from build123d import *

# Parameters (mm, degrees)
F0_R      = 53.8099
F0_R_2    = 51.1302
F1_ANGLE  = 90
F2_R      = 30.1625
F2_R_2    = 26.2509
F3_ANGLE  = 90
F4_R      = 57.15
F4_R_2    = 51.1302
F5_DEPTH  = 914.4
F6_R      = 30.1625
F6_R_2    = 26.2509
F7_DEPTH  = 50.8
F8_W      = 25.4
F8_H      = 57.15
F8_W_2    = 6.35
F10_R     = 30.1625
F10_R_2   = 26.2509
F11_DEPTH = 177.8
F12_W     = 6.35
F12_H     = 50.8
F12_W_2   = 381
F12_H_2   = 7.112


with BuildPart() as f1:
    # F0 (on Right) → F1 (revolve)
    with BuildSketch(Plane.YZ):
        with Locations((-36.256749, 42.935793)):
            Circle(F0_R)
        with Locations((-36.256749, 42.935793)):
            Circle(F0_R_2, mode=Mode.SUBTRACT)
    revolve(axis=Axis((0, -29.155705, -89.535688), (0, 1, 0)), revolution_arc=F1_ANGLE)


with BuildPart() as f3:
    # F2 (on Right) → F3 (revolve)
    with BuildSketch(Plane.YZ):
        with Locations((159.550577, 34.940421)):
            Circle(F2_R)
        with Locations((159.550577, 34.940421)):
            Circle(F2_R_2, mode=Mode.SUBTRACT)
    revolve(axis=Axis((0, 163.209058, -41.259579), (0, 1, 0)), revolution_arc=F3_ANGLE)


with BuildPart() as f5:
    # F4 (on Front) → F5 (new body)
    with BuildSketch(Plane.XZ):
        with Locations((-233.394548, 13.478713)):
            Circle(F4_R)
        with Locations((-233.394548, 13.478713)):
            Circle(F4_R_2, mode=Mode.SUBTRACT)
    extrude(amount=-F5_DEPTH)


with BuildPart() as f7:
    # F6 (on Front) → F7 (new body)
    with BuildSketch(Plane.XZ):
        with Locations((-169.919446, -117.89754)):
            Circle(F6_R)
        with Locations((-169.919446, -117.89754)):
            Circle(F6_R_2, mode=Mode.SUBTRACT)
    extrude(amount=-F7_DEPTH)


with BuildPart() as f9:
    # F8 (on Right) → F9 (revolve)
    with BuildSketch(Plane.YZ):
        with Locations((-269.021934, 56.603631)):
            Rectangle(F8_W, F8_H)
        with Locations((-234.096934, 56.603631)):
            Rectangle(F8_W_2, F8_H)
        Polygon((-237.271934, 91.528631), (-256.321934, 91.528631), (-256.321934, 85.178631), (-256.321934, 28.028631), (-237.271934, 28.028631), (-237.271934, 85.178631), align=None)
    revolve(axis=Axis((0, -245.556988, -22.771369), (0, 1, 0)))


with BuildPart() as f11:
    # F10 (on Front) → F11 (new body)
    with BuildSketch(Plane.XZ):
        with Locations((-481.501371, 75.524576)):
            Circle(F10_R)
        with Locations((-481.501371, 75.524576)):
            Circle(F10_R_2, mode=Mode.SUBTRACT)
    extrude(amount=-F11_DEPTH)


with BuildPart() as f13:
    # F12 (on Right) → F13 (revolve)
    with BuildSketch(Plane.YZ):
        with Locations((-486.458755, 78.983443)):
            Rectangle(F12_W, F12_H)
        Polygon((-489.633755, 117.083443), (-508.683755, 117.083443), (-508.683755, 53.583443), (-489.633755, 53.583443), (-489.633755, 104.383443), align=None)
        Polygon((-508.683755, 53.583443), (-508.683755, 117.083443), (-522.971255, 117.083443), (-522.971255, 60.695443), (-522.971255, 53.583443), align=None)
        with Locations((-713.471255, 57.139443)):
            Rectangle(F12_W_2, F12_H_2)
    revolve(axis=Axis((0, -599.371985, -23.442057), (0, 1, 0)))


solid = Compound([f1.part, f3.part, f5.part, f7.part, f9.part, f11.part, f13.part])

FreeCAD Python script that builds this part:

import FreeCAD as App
import Part
import Sketcher
from FreeCAD import Vector
Q = App.Units.Quantity


def add_polygon(sketch, points):
    """Adds a closed chain of lines whose ends are joined by coincident constraints."""
    first, n = sketch.GeometryCount, len(points)
    for a, b in zip(points, points[1:] + points[:1]):
        sketch.addGeometry(Part.LineSegment(App.Vector(*a, 0), App.Vector(*b, 0)), False)
    for i in range(n):
        sketch.addConstraint(Sketcher.Constraint("Coincident", first + i, 2, first + (i + 1) % n, 1))

doc = App.newDocument("Part")
body = doc.addObject("PartDesign::Body", "Body")

# Sketch on YZ plane
sketch1 = body.newObject("Sketcher::SketchObject", "Sketch")
sketch1.AttachmentSupport = (doc.getObject("YZ_Plane"), [""])
sketch1.MapMode = "FlatFace"
sketch1.addGeometry([
    Part.Circle(Vector(-36, 43, 0), Vector(0, 0, 1), 54),
    Part.Circle(Vector(-36, 43, 0), Vector(0, 0, 1), 51),
], False)
sketch1.addGeometry(Part.LineSegment(Vector(-36, -90, 0), Vector(-26, -90, 0)), True)  # axis
sketch1.addConstraint([
    Sketcher.Constraint("Horizontal", 2),
    Sketcher.Constraint("Coincident", 1, 3, 0, 3),
    Sketcher.Constraint("Vertical", 1, 3, 2, 1),
    Sketcher.Constraint("Diameter", 0, Q("4.237 in")),
    Sketcher.Constraint("Diameter", 1, Q("4.026 in")),
    Sketcher.Constraint("DistanceX", 2, 1, 2, 2, 10.0),
    Sketcher.Constraint("DistanceX", 0, 3, -1, 1, 36.256749),
    Sketcher.Constraint("DistanceY", 2, 1, 0, 3, 132.471481),
    Sketcher.Constraint("DistanceY", -1, 1, 0, 3, 42.935793),
])
revolution = body.newObject("PartDesign::Revolution", "Revolution")
revolution.Profile = sketch1
revolution.ReferenceAxis = (sketch1, ["Axis0"])
revolution.Angle = 90
body2 = doc.addObject("PartDesign::Body", "Body001")

# Sketch on YZ plane
sketch2 = body2.newObject("Sketcher::SketchObject", "Sketch001")
sketch2.AttachmentSupport = (doc.getObject("YZ_Plane001"), [""])
sketch2.MapMode = "FlatFace"
sketch2.addGeometry([
    Part.Circle(Vector(160, 35, 0), Vector(0, 0, 1), 30),
    Part.Circle(Vector(160, 35, 0), Vector(0, 0, 1), 26),
], False)
sketch2.addGeometry(Part.LineSegment(Vector(160, -41, 0), Vector(170, -41, 0)), True)  # axis
sketch2.addConstraint([
    Sketcher.Constraint("Horizontal", 2),
    Sketcher.Constraint("Coincident", 1, 3, 0, 3),
    Sketcher.Constraint("Vertical", 1, 3, 2, 1),
    Sketcher.Constraint("Diameter", 0, Q("2.375 in")),
    Sketcher.Constraint("Diameter", 1, Q("2.067 in")),
    Sketcher.Constraint("DistanceY", 2, 1, 0, 3, Q("3 in")),
    Sketcher.Constraint("DistanceX", 2, 1, 2, 2, 10.0),
    Sketcher.Constraint("DistanceY", -1, 1, 0, 3, 34.940421),
    Sketcher.Constraint("DistanceX", -1, 1, 0, 3, 159.550577),
])
revolution2 = body2.newObject("PartDesign::Revolution", "Revolution001")
revolution2.Profile = sketch2
revolution2.ReferenceAxis = (sketch2, ["Axis0"])
revolution2.Angle = 90
body3 = doc.addObject("PartDesign::Body", "Body002")

# Sketch on XZ plane
sketch3 = body3.newObject("Sketcher::SketchObject", "Sketch002")
sketch3.AttachmentSupport = (doc.getObject("XZ_Plane002"), [""])
sketch3.MapMode = "FlatFace"
sketch3.addGeometry([
    Part.Circle(Vector(-233, 13, 0), Vector(0, 0, 1), 57),
    Part.Circle(Vector(-233, 13, 0), Vector(0, 0, 1), 51),
], False)
sketch3.addConstraint([
    Sketcher.Constraint("Coincident", 1, 3, 0, 3),
    Sketcher.Constraint("Diameter", 0, Q("4.5 in")),
    Sketcher.Constraint("Diameter", 1, Q("4.026 in")),
    Sketcher.Constraint("DistanceX", 0, 3, -1, 1, 233.394548),
    Sketcher.Constraint("DistanceY", -1, 1, 0, 3, 13.478713),
])
pad1 = body3.newObject("PartDesign::Pad", "Pad")
pad1.Profile = sketch3
pad1.Length = Q("36 in")
pad1.Reversed = True
body4 = doc.addObject("PartDesign::Body", "Body003")

# Sketch on XZ plane
sketch4 = body4.newObject("Sketcher::SketchObject", "Sketch003")
sketch4.AttachmentSupport = (doc.getObject("XZ_Plane003"), [""])
sketch4.MapMode = "FlatFace"
sketch4.addGeometry([
    Part.Circle(Vector(-170, -118, 0), Vector(0, 0, 1), 30),
    Part.Circle(Vector(-170, -118, 0), Vector(0, 0, 1), 26),
], False)
sketch4.addConstraint([
    Sketcher.Constraint("Coincident", 1, 3, 0, 3),
    Sketcher.Constraint("Diameter", 0, Q("2.375 in")),
    Sketcher.Constraint("Diameter", 1, Q("2.067 in")),
    Sketcher.Constraint("DistanceY", 0, 3, -1, 1, 117.89754),
    Sketcher.Constraint("DistanceX", 0, 3, -1, 1, 169.919446),
])
pad2 = body4.newObject("PartDesign::Pad", "Pad001")
pad2.Profile = sketch4
pad2.Length = Q("2 in")
pad2.Reversed = True
body5 = doc.addObject("PartDesign::Body", "Body004")

# Sketch on YZ plane
sketch5 = body5.newObject("Sketcher::SketchObject", "Sketch004")
sketch5.AttachmentSupport = (doc.getObject("YZ_Plane004"), [""])
sketch5.MapMode = "FlatFace"
add_polygon(sketch5, [(-282, 85), (-282, 28), (-231, 28), (-231, 85), (-237, 85), (-237, 92), (-256, 92), (-256, 85)])  # lines 0-7
sketch5.addGeometry(Part.LineSegment(Vector(-282, -23, 0), Vector(-231, -23, 0)), True)  # axis
sketch5.addConstraint([
    Sketcher.Constraint("Vertical", 0),
    Sketcher.Constraint("Horizontal", 1),
    Sketcher.Constraint("Vertical", 2),
    Sketcher.Constraint("Horizontal", 3),
    Sketcher.Constraint("Vertical", 4),
    Sketcher.Constraint("Horizontal", 5),
    Sketcher.Constraint("Vertical", 6),
    Sketcher.Constraint("Horizontal", 7),
    Sketcher.Constraint("Horizontal", 8),
    Sketcher.Constraint("Horizontal", 3, 2, 6, 2),
    Sketcher.Constraint("Vertical", 7, 2, 8, 1),
    Sketcher.Constraint("Vertical", 2, 2, 8, 2),
    Sketcher.Constraint("Equal", 3, 4),
    Sketcher.Constraint("DistanceX", 1, 1, 1, 2, Q("2 in")),
    Sketcher.Constraint("DistanceX", 7, 2, 7, 1, Q("1 in")),
    Sketcher.Constraint("DistanceY", 8, 1, 0, 2, Q("2 in")),
    Sketcher.Constraint("DistanceX", 3, 2, 3, 1, Q("0.25 in")),
    Sketcher.Constraint("DistanceY", 0, 2, 0, 1, Q("2.25 in")),
    Sketcher.Constraint("DistanceY", -1, 1, 0, 2, 28.028631),
    Sketcher.Constraint("DistanceX", 0, 2, -1, 1, 281.721934),
])
revolution3 = body5.newObject("PartDesign::Revolution", "Revolution002")
revolution3.Profile = sketch5
revolution3.ReferenceAxis = (sketch5, ["Axis0"])
revolution3.Angle = 360
body6 = doc.addObject("PartDesign::Body", "Body005")

# Sketch on XZ plane
sketch6 = body6.newObject("Sketcher::SketchObject", "Sketch005")
sketch6.AttachmentSupport = (doc.getObject("XZ_Plane005"), [""])
sketch6.MapMode = "FlatFace"
sketch6.addGeometry([
    Part.Circle(Vector(-482, 76, 0), Vector(0, 0, 1), 30),
    Part.Circle(Vector(-482, 76, 0), Vector(0, 0, 1), 26),
], False)
sketch6.addConstraint([
    Sketcher.Constraint("Coincident", 1, 3, 0, 3),
    Sketcher.Constraint("Diameter", 0, Q("2.375 in")),
    Sketcher.Constraint("Diameter", 1, Q("2.067 in")),
    Sketcher.Constraint("DistanceX", 0, 3, -1, 1, 481.501371),
    Sketcher.Constraint("DistanceY", -1, 1, 0, 3, 75.524576),
])
pad3 = body6.newObject("PartDesign::Pad", "Pad002")
pad3.Profile = sketch6
pad3.Length = Q("7 in")
pad3.Reversed = True
body7 = doc.addObject("PartDesign::Body", "Body006")

# Sketch on YZ plane
sketch7 = body7.newObject("Sketcher::SketchObject", "Sketch006")
sketch7.AttachmentSupport = (doc.getObject("YZ_Plane006"), [""])
sketch7.MapMode = "FlatFace"
add_polygon(sketch7, [(-483, 54), (-483, 104), (-490, 104), (-490, 117), (-523, 117), (-523, 61), (-904, 61), (-904, 54)])  # lines 0-7
sketch7.addGeometry(Part.LineSegment(Vector(-904, -23, 0), Vector(-483, -23, 0)), True)  # axis
sketch7.addConstraint([
    Sketcher.Constraint("Vertical", 0),
    Sketcher.Constraint("Horizontal", 1),
    Sketcher.Constraint("Vertical", 2),
    Sketcher.Constraint("Horizontal", 3),
    Sketcher.Constraint("Vertical", 4),
    Sketcher.Constraint("Horizontal", 5),
    Sketcher.Constraint("Vertical", 6),
    Sketcher.Constraint("Horizontal", 7),
    Sketcher.Constraint("Horizontal", 8),
    Sketcher.Constraint("Vertical", 6, 2, 8, 1),
    Sketcher.Constraint("Vertical", 7, 2, 8, 2),
    Sketcher.Constraint("DistanceX", 5, 2, 5, 1, Q("15 in")),
    Sketcher.Constraint("DistanceY", 0, 1, 0, 2, Q("2 in")),
    Sketcher.Constraint("DistanceY", 2, 1, 2, 2, Q("0.5 in")),
    Sketcher.Constraint("DistanceX", 1, 2, 1, 1, Q("0.25 in")),
    Sketcher.Constraint("DistanceY", 4, 2, 4, 1, Q("2.22 in")),
    Sketcher.Constraint("DistanceX", 3, 2, 3, 1, Q("1.3125 in")),
    Sketcher.Constraint("DistanceY", 8, 1, 5, 2, Q("3.3125 in")),
    Sketcher.Constraint("DistanceX", 0, 2, -1, 1, 483.283755),
    Sketcher.Constraint("DistanceY", -1, 1, 0, 2, 104.383443),
])
revolution4 = body7.newObject("PartDesign::Revolution", "Revolution003")
revolution4.Profile = sketch7
revolution4.ReferenceAxis = (sketch7, ["Axis0"])
revolution4.Angle = 360

doc.recompute()
